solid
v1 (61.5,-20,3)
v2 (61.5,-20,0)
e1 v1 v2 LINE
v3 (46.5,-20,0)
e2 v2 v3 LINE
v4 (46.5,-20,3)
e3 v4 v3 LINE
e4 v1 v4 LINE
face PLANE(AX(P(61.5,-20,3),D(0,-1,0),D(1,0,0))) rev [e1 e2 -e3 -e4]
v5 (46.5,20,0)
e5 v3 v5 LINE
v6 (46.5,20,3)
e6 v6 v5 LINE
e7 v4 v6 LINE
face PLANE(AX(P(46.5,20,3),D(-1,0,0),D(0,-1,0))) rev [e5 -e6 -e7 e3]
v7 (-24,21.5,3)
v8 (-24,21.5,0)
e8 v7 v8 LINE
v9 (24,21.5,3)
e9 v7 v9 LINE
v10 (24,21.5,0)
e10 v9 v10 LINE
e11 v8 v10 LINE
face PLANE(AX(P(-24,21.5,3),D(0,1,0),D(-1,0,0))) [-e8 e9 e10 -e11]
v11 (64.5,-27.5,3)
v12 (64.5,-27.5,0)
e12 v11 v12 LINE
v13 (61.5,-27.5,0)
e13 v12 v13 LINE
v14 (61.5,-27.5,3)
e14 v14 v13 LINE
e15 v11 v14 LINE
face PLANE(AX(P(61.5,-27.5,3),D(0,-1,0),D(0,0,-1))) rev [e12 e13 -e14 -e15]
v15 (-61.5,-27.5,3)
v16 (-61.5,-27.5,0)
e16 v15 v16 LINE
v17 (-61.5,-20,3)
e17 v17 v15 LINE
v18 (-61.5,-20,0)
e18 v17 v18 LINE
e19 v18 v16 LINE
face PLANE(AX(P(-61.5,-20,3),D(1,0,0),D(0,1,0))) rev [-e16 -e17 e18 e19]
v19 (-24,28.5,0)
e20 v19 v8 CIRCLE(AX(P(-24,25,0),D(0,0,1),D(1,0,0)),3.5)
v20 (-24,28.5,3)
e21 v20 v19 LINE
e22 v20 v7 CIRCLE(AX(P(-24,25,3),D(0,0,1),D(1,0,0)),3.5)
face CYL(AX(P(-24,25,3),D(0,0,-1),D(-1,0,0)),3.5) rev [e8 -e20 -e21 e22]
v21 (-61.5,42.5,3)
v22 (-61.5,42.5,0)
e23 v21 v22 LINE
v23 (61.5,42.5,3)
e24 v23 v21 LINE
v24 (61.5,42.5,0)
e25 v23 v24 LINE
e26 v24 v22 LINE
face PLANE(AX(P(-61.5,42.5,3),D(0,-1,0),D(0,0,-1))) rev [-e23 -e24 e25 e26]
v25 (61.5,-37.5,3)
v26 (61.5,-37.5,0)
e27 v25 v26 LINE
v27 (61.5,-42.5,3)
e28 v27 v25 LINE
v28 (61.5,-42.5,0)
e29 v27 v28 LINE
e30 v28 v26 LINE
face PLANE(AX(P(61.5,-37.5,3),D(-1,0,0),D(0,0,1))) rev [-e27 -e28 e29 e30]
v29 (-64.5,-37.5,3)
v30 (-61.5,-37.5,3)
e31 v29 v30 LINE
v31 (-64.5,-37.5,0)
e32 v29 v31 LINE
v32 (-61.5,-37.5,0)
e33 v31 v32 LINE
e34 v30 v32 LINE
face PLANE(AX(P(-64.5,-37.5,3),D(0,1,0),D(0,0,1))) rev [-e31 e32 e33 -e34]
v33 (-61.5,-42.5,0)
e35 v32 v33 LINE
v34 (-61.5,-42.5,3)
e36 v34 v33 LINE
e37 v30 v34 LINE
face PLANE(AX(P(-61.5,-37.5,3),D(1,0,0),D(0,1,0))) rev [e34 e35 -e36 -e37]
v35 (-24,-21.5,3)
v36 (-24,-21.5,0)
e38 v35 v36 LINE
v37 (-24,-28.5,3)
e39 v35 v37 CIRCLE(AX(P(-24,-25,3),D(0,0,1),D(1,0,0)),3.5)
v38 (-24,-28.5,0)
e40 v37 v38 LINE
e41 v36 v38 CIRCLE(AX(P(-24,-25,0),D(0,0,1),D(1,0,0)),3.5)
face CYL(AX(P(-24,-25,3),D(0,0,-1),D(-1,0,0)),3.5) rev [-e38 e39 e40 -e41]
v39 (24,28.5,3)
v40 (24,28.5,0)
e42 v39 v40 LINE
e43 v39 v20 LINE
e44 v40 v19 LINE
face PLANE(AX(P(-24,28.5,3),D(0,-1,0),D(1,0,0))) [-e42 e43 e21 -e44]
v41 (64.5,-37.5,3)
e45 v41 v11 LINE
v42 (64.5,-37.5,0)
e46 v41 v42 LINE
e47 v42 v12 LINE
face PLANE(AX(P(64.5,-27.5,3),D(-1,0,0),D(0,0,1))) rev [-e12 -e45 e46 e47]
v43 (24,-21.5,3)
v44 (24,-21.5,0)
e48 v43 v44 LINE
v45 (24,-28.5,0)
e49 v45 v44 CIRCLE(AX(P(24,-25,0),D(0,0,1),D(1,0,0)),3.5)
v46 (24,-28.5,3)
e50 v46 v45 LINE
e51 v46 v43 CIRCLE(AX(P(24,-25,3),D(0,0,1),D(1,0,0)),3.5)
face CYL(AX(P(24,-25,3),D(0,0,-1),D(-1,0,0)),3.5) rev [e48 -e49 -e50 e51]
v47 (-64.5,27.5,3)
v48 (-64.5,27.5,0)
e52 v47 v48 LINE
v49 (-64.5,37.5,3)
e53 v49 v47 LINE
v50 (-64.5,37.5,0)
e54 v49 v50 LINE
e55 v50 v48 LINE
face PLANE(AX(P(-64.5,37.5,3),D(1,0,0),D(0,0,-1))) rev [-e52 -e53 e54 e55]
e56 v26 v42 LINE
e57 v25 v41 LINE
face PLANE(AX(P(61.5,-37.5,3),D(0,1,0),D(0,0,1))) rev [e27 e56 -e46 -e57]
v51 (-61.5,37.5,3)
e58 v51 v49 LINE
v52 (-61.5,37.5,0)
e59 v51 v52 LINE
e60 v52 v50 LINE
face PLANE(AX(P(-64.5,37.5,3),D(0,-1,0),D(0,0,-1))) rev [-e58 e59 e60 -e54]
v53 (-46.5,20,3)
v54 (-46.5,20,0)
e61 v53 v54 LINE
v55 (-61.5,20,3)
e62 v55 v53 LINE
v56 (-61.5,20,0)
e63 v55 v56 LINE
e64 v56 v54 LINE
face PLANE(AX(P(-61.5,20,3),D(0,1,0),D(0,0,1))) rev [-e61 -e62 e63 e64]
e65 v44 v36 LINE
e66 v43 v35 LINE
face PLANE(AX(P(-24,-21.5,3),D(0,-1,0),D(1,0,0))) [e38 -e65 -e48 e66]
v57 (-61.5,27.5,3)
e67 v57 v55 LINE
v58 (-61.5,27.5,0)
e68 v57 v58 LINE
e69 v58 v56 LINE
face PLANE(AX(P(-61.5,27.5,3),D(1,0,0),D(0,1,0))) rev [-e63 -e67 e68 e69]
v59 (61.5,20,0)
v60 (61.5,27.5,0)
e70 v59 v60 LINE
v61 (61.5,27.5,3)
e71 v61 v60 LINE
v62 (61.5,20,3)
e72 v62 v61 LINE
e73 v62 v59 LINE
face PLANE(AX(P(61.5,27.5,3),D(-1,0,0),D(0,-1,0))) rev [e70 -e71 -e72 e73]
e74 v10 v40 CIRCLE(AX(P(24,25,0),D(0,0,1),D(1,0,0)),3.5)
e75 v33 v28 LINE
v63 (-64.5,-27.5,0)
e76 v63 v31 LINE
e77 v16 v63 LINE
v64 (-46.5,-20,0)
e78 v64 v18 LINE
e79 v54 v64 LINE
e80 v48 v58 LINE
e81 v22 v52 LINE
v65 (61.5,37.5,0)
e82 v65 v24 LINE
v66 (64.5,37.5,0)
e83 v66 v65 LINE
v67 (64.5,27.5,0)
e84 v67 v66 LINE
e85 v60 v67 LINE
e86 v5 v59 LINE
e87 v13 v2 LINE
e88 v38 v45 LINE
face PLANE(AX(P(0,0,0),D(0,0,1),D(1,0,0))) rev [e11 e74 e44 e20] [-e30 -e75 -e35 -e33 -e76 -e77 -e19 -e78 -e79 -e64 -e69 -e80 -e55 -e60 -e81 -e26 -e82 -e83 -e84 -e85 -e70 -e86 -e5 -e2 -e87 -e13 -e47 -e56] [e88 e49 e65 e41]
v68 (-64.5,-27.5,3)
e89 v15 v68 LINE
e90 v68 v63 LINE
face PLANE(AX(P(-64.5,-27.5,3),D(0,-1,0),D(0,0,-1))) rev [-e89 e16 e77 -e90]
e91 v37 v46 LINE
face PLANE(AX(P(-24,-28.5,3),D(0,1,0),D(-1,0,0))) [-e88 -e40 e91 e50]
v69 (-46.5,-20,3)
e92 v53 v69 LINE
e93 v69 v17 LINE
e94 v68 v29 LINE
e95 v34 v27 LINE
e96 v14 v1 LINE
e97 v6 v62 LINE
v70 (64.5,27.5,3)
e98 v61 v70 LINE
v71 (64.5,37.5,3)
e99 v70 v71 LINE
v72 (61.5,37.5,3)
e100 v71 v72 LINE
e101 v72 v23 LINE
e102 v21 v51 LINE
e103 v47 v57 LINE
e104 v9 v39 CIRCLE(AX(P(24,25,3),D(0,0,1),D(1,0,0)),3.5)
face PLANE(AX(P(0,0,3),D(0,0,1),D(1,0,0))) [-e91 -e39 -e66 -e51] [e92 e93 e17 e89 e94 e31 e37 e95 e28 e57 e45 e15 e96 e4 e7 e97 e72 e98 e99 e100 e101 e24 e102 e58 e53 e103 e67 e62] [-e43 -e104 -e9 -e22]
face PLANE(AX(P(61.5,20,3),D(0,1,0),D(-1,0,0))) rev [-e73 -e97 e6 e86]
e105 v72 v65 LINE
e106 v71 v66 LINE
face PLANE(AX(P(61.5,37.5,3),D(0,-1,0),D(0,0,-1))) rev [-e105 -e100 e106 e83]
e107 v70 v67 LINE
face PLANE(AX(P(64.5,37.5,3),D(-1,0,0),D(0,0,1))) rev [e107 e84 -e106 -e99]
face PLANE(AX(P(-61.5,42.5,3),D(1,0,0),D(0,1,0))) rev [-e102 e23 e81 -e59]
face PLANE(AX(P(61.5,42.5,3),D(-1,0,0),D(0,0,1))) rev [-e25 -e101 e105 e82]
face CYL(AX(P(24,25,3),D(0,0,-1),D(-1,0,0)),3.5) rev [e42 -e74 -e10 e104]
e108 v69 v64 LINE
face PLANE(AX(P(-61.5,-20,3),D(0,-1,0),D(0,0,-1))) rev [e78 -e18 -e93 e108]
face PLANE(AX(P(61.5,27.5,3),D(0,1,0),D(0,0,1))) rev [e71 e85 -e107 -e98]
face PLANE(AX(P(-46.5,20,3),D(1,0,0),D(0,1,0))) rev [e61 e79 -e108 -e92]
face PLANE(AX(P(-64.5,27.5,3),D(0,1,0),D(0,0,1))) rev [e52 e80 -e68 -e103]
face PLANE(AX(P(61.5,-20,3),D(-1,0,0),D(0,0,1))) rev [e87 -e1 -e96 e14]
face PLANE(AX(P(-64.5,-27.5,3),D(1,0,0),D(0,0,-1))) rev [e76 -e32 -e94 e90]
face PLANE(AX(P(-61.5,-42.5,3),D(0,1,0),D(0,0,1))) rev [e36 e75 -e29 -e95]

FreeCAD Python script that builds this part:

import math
import FreeCAD as App
import Part
import Sketcher
from FreeCAD import Vector
Q = App.Units.Quantity

doc = App.newDocument("Part")
params = doc.addObject("Spreadsheet::Sheet", "Params")
for row, (alias, value) in enumerate([
    ("sketch1_radius", "3.5 mm"),
    ("sketch1_width", "15 mm"),
    ("sketch1_width2", "3 mm"),
    ("sketch1_width3", "123 mm"),
    ("sketch1_width4", "48 mm"),
    ("pad1_length", "3 mm"),
], start=1):
    params.set(f"A{row}", alias)
    params.set(f"B{row}", "=" + value)
    params.setAlias(f"B{row}", alias)

body = doc.addObject("PartDesign::Body", "Body")

# Sketch on XY plane
sketch1 = doc.addObject("Sketcher::SketchObject", "Sketch")
body.addObject(sketch1)
sketch1.AttachmentSupport = (doc.XY_Plane, [""])
sketch1.MapMode = "FlatFace"
sketch1.addGeometry(Part.LineSegment(Vector(-61.5, 27.5, 0), Vector(-61.5, 20, 0)), False)
sketch1.addGeometry(Part.LineSegment(Vector(-61.5, 20, 0), Vector(-46.5, 20, 0)), False)
sketch1.addGeometry(Part.LineSegment(Vector(-46.5, 20, 0), Vector(-46.5, -20, 0)), False)
sketch1.addGeometry(Part.LineSegment(Vector(-46.5, -20, 0), Vector(-61.5, -20, 0)), False)
sketch1.addGeometry(Part.LineSegment(Vector(-61.5, -20, 0), Vector(-61.5, -27.5, 0)), False)
sketch1.addGeometry(Part.LineSegment(Vector(-61.5, -27.5, 0), Vector(-64.5, -27.5, 0)), False)
sketch1.addGeometry(Part.LineSegment(Vector(-64.5, -27.5, 0), Vector(-64.5, -37.5, 0)), False)
sketch1.addGeometry(Part.LineSegment(Vector(-64.5, -37.5, 0), Vector(-61.5, -37.5, 0)), False)
sketch1.addGeometry(Part.LineSegment(Vector(-61.5, -37.5, 0), Vector(-61.5, -42.5, 0)), False)
sketch1.addGeometry(Part.LineSegment(Vector(-61.5, -42.5, 0), Vector(61.5, -42.5, 0)), False)
sketch1.addGeometry(Part.LineSegment(Vector(61.5, -42.5, 0), Vector(61.5, -37.5, 0)), False)
sketch1.addGeometry(Part.LineSegment(Vector(61.5, -37.5, 0), Vector(64.5, -37.5, 0)), False)
sketch1.addGeometry(Part.LineSegment(Vector(64.5, -37.5, 0), Vector(64.5, -27.5, 0)), False)
sketch1.addGeometry(Part.LineSegment(Vector(64.5, -27.5, 0), Vector(61.5, -27.5, 0)), False)
sketch1.addGeometry(Part.LineSegment(Vector(61.5, -27.5, 0), Vector(61.5, -20, 0)), False)
sketch1.addGeometry(Part.LineSegment(Vector(61.5, -20, 0), Vector(46.5, -20, 0)), False)
sketch1.addGeometry(Part.LineSegment(Vector(46.5, -20, 0), Vector(46.5, 20, 0)), False)
sketch1.addGeometry(Part.LineSegment(Vector(46.5, 20, 0), Vector(61.5, 20, 0)), False)
sketch1.addGeometry(Part.LineSegment(Vector(61.5, 20, 0), Vector(61.5, 27.5, 0)), False)
sketch1.addGeometry(Part.LineSegment(Vector(61.5, 27.5, 0), Vector(64.5, 27.5, 0)), False)
sketch1.addGeometry(Part.LineSegment(Vector(64.5, 27.5, 0), Vector(64.5, 37.5, 0)), False)
sketch1.addGeometry(Part.LineSegment(Vector(64.5, 37.5, 0), Vector(61.5, 37.5, 0)), False)
sketch1.addGeometry(Part.LineSegment(Vector(61.5, 37.5, 0), Vector(61.5, 42.5, 0)), False)
sketch1.addGeometry(Part.LineSegment(Vector(61.5, 42.5, 0), Vector(-61.5, 42.5, 0)), False)
sketch1.addGeometry(Part.LineSegment(Vector(-61.5, 42.5, 0), Vector(-61.5, 37.5, 0)), False)
sketch1.addGeometry(Part.LineSegment(Vector(-61.5, 37.5, 0), Vector(-64.5, 37.5, 0)), False)
sketch1.addGeometry(Part.LineSegment(Vector(-64.5, 37.5, 0), Vector(-64.5, 27.5, 0)), False)
sketch1.addGeometry(Part.LineSegment(Vector(-64.5, 27.5, 0), Vector(-61.5, 27.5, 0)), False)
sketch1.addGeometry(Part.ArcOfCircle(Part.Circle(Vector(-24, -25, 0), Vector(0, 0, 1), 3.5), math.radians(90), math.radians(270)), False)
sketch1.addGeometry(Part.LineSegment(Vector(-24, -21.5, 0), Vector(24, -21.5, 0)), False)
sketch1.addGeometry(Part.ArcOfCircle(Part.Circle(Vector(24, -25, 0), Vector(0, 0, 1), 3.5), math.radians(-90), math.radians(90)), False)
sketch1.addGeometry(Part.LineSegment(Vector(24, -28.5, 0), Vector(-24, -28.5, 0)), False)
sketch1.addGeometry(Part.ArcOfCircle(Part.Circle(Vector(-24, 25, 0), Vector(0, 0, 1), 3.5), math.radians(90), math.radians(270)), False)
sketch1.addGeometry(Part.LineSegment(Vector(-24, 28.5, 0), Vector(24, 28.5, 0)), False)
sketch1.addGeometry(Part.ArcOfCircle(Part.Circle(Vector(24, 25, 0), Vector(0, 0, 1), 3.5), math.radians(-90), math.radians(90)), False)
sketch1.addGeometry(Part.LineSegment(Vector(24, 21.5, 0), Vector(-24, 21.5, 0)), False)
sketch1.addConstraint(Sketcher.Constraint("Coincident", 0, 2, 1, 1))
sketch1.addConstraint(Sketcher.Constraint("Coincident", 1, 2, 2, 1))
sketch1.addConstraint(Sketcher.Constraint("Coincident", 2, 2, 3, 1))
sketch1.addConstraint(Sketcher.Constraint("Coincident", 3, 2, 4, 1))
sketch1.addConstraint(Sketcher.Constraint("Coincident", 4, 2, 5, 1))
sketch1.addConstraint(Sketcher.Constraint("Coincident", 5, 2, 6, 1))
sketch1.addConstraint(Sketcher.Constraint("Coincident", 6, 2, 7, 1))
sketch1.addConstraint(Sketcher.Constraint("Coincident", 7, 2, 8, 1))
sketch1.addConstraint(Sketcher.Constraint("Coincident", 8, 2, 9, 1))
sketch1.addConstraint(Sketcher.Constraint("Coincident", 9, 2, 10, 1))
sketch1.addConstraint(Sketcher.Constraint("Coincident", 10, 2, 11, 1))
sketch1.addConstraint(Sketcher.Constraint("Coincident", 11, 2, 12, 1))
sketch1.addConstraint(Sketcher.Constraint("Coincident", 12, 2, 13, 1))
sketch1.addConstraint(Sketcher.Constraint("Coincident", 13, 2, 14, 1))
sketch1.addConstraint(Sketcher.Constraint("Coincident", 14, 2, 15, 1))
sketch1.addConstraint(Sketcher.Constraint("Coincident", 15, 2, 16, 1))
sketch1.addConstraint(Sketcher.Constraint("Coincident", 16, 2, 17, 1))
sketch1.addConstraint(Sketcher.Constraint("Coincident", 17, 2, 18, 1))
sketch1.addConstraint(Sketcher.Constraint("Coincident", 18, 2, 19, 1))
sketch1.addConstraint(Sketcher.Constraint("Coincident", 19, 2, 20, 1))
sketch1.addConstraint(Sketcher.Constraint("Coincident", 20, 2, 21, 1))
sketch1.addConstraint(Sketcher.Constraint("Coincident", 21, 2, 22, 1))
sketch1.addConstraint(Sketcher.Constraint("Coincident", 22, 2, 23, 1))
sketch1.addConstraint(Sketcher.Constraint("Coincident", 23, 2, 24, 1))
sketch1.addConstraint(Sketcher.Constraint("Coincident", 24, 2, 25, 1))
sketch1.addConstraint(Sketcher.Constraint("Coincident", 25, 2, 26, 1))
sketch1.addConstraint(Sketcher.Constraint("Coincident", 26, 2, 27, 1))
sketch1.addConstraint(Sketcher.Constraint("Coincident", 27, 2, 0, 1))
sketch1.addConstraint(Sketcher.Constraint("Tangent", 28, 1, 29, 1))
sketch1.addConstraint(Sketcher.Constraint("Tangent", 29, 2, 30, 2))
sketch1.addConstraint(Sketcher.Constraint("Tangent", 30, 1, 31, 1))
sketch1.addConstraint(Sketcher.Constraint("Tangent", 31, 2, 28, 2))
sketch1.addConstraint(Sketcher.Constraint("Tangent", 32, 1, 33, 1))
sketch1.addConstraint(Sketcher.Constraint("Tangent", 33, 2, 34, 2))
sketch1.addConstraint(Sketcher.Constraint("Tangent", 34, 1, 35, 1))
sketch1.addConstraint(Sketcher.Constraint("Tangent", 35, 2, 32, 2))
sketch1.addConstraint(Sketcher.Constraint("Vertical", 0))
sketch1.addConstraint(Sketcher.Constraint("Horizontal", 1))
sketch1.addConstraint(Sketcher.Constraint("Vertical", 2))
sketch1.addConstraint(Sketcher.Constraint("Horizontal", 3))
sketch1.addConstraint(Sketcher.Constraint("Vertical", 4))
sketch1.addConstraint(Sketcher.Constraint("Horizontal", 5))
sketch1.addConstraint(Sketcher.Constraint("Vertical", 6))
sketch1.addConstraint(Sketcher.Constraint("Horizontal", 7))
sketch1.addConstraint(Sketcher.Constraint("Vertical", 8))
sketch1.addConstraint(Sketcher.Constraint("Horizontal", 9))
sketch1.addConstraint(Sketcher.Constraint("Vertical", 10))
sketch1.addConstraint(Sketcher.Constraint("Horizontal", 11))
sketch1.addConstraint(Sketcher.Constraint("Vertical", 12))
sketch1.addConstraint(Sketcher.Constraint("Horizontal", 13))
sketch1.addConstraint(Sketcher.Constraint("Vertical", 14))
sketch1.addConstraint(Sketcher.Constraint("Horizontal", 15))
sketch1.addConstraint(Sketcher.Constraint("Vertical", 16))
sketch1.addConstraint(Sketcher.Constraint("Horizontal", 17))
sketch1.addConstraint(Sketcher.Constraint("Vertical", 18))
sketch1.addConstraint(Sketcher.Constraint("Horizontal", 19))
sketch1.addConstraint(Sketcher.Constraint("Vertical", 20))
sketch1.addConstraint(Sketcher.Constraint("Horizontal", 21))
sketch1.addConstraint(Sketcher.Constraint("Vertical", 22))
sketch1.addConstraint(Sketcher.Constraint("Horizontal", 23))
sketch1.addConstraint(Sketcher.Constraint("Vertical", 24))
sketch1.addConstraint(Sketcher.Constraint("Horizontal", 25))
sketch1.addConstraint(Sketcher.Constraint("Vertical", 26))
sketch1.addConstraint(Sketcher.Constraint("Horizontal", 27))
sketch1.addConstraint(Sketcher.Constraint("Horizontal", 29))
sketch1.addConstraint(Sketcher.Constraint("Horizontal", 31))
sketch1.addConstraint(Sketcher.Constraint("Horizontal", 33))
sketch1.addConstraint(Sketcher.Constraint("Horizontal", 35))
sketch1.addConstraint(Sketcher.Constraint("Equal", 30, 32))
sketch1.addConstraint(Sketcher.Constraint("Symmetric", 30, 3, 32, 3, -1, 1))
sketch1.addConstraint(Sketcher.Constraint("Symmetric", 0, 2, 14, 2, -1, 1))
sketch1.addConstraint(Sketcher.Constraint("Symmetric", 2, 2, 16, 2, -1, 1))
sketch1.addConstraint(Sketcher.Constraint("Symmetric", 4, 2, 18, 2, -1, 1))
sketch1.addConstraint(Sketcher.Constraint("Symmetric", 6, 2, 20, 2, -1, 1))
sketch1.addConstraint(Sketcher.Constraint("Symmetric", 8, 2, 22, 2, -1, 1))
sketch1.addConstraint(Sketcher.Constraint("Symmetric", 10, 2, 24, 2, -1, 1))
sketch1.addConstraint(Sketcher.Constraint("Symmetric", 12, 2, 26, 2, -1, 1))
sketch1.addConstraint(Sketcher.Constraint("Symmetric", 7, 2, 10, 2, -2))
sketch1.addConstraint(Sketcher.Constraint("Symmetric", 5, 2, 12, 2, -2))
sketch1.addConstraint(Sketcher.Constraint("Symmetric", 3, 2, 14, 2, -2))
sketch1.addConstraint(Sketcher.Constraint("Vertical", 28, 3, 32, 3))
sketch1.addConstraint(Sketcher.Constraint("Vertical", 30, 3, 34, 3))
sketch1.addConstraint(Sketcher.Constraint("Vertical", 4, 2, 7, 2))
sketch1.addConstraint(Sketcher.Constraint("Radius", 28, Q("3.5 mm")))
sketch1.addConstraint(Sketcher.Constraint("DistanceX", 1, 1, 1, 2, Q("15 mm")))
sketch1.addConstraint(Sketcher.Constraint("DistanceX", 5, 2, 5, 1, Q("3 mm")))
sketch1.addConstraint(Sketcher.Constraint("DistanceX", 9, 1, 9, 2, Q("123 mm")))
sketch1.addConstraint(Sketcher.Constraint("DistanceX", 29, 1, 29, 2, Q("48 mm")))
sketch1.addConstraint(Sketcher.Constraint("DistanceY", 2, 2, 2, 1, Q("40 mm")))
sketch1.addConstraint(Sketcher.Constraint("DistanceY", 6, 2, 6, 1, Q("10 mm")))
sketch1.addConstraint(Sketcher.Constraint("DistanceY", 8, 2, 8, 1, Q("5 mm")))
sketch1.addConstraint(Sketcher.Constraint("DistanceY", 0, 2, 0, 1, Q("7.5 mm")))
sketch1.addConstraint(Sketcher.Constraint("DistanceY", 28, 3, -1, 1, Q("25 mm")))
sketch1.setExpression("Constraints[83]", "Params.sketch1_radius")
sketch1.setExpression("Constraints[84]", "Params.sketch1_width")
sketch1.setExpression("Constraints[85]", "Params.sketch1_width2")
sketch1.setExpression("Constraints[86]", "Params.sketch1_width3")
sketch1.setExpression("Constraints[87]", "Params.sketch1_width4")
pad1 = doc.addObject("PartDesign::Pad", "Pad")
body.addObject(pad1)
pad1.Profile = sketch1
pad1.setExpression("Length", "Params.pad1_length")

doc.recompute()
